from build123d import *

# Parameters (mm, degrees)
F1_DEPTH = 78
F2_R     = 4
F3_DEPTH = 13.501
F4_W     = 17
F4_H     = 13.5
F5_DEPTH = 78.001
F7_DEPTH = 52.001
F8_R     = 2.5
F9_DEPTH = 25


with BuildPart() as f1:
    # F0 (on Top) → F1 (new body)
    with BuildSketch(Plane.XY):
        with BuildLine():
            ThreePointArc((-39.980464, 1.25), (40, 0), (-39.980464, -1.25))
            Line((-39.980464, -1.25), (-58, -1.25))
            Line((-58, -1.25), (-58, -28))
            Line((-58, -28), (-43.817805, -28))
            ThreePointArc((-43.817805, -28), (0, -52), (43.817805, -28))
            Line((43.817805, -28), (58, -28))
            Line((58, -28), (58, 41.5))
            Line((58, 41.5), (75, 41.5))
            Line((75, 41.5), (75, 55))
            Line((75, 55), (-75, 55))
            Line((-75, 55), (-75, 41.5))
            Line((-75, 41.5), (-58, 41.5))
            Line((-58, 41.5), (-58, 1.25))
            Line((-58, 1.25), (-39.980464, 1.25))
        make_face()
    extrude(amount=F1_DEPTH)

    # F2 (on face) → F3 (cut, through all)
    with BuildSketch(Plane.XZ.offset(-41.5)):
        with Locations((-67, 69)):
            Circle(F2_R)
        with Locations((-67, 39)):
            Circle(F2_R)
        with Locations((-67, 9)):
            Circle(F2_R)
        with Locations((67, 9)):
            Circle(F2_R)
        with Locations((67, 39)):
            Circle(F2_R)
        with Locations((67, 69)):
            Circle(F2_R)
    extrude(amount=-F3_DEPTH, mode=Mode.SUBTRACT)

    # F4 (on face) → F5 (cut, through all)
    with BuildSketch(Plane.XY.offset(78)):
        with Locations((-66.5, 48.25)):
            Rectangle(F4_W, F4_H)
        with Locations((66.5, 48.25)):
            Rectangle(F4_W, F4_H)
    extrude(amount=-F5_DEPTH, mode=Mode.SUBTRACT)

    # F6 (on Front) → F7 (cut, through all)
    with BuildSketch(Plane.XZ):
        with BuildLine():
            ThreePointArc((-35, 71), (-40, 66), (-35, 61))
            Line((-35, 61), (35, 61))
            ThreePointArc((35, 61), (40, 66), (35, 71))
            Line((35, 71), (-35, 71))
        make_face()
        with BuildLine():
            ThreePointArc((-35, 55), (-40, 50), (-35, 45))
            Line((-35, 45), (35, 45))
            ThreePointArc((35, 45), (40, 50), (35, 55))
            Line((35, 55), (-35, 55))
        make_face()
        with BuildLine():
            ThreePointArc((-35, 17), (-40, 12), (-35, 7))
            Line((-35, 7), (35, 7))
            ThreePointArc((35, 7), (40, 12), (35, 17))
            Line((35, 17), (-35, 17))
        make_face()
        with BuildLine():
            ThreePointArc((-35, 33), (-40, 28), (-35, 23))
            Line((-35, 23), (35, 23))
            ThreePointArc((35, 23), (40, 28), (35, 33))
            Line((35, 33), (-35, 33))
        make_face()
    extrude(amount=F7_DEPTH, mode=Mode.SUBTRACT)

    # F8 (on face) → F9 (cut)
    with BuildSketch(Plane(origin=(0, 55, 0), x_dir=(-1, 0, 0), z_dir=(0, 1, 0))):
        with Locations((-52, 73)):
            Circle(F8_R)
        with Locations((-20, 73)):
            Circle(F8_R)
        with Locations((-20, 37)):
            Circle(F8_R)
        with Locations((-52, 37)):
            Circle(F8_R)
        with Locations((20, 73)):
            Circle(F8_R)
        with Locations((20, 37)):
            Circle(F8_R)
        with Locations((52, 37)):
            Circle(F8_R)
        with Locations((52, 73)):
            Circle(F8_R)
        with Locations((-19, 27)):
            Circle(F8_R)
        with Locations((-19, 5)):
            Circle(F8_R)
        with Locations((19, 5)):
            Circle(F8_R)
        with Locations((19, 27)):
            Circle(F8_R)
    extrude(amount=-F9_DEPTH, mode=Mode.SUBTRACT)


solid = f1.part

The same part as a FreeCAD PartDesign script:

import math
import FreeCAD as App
import Part
import Sketcher
Q = App.Units.Quantity

doc = App.newDocument("Part")
body = doc.addObject("PartDesign::Body", "Body")

# Sketch on XY plane
sketch1 = body.newObject("Sketcher::SketchObject", "Sketch")
sketch1.AttachmentSupport = (doc.getObject("XY_Plane"), [""])
sketch1.MapMode = "FlatFace"
sketch1.addGeometry(Part.ArcOfCircle(Part.Circle(App.Vector(0, 0, 0), App.Vector(0, 0, 1), 40), math.radians(-178), math.radians(178)), False)
sketch1.addGeometry(Part.LineSegment(App.Vector(-40, -1.2, 0), App.Vector(-58, -1.2, 0)), False)
sketch1.addGeometry(Part.LineSegment(App.Vector(-58, -1.2, 0), App.Vector(-58, -28, 0)), False)
sketch1.addGeometry(Part.LineSegment(App.Vector(-58, -28, 0), App.Vector(-43.8, -28, 0)), False)
sketch1.addGeometry(Part.ArcOfCircle(Part.Circle(App.Vector(0, 0, 0), App.Vector(0, 0, 1), 52), math.radians(-147), math.radians(-33)), False)
sketch1.addGeometry(Part.LineSegment(App.Vector(43.8, -28, 0), App.Vector(58, -28, 0)), False)
sketch1.addGeometry(Part.LineSegment(App.Vector(58, -28, 0), App.Vector(58, 41.5, 0)), False)
sketch1.addGeometry(Part.LineSegment(App.Vector(58, 41.5, 0), App.Vector(75, 41.5, 0)), False)
sketch1.addGeometry(Part.LineSegment(App.Vector(75, 41.5, 0), App.Vector(75, 55, 0)), False)
sketch1.addGeometry(Part.LineSegment(App.Vector(75, 55, 0), App.Vector(-75, 55, 0)), False)
sketch1.addGeometry(Part.LineSegment(App.Vector(-75, 55, 0), App.Vector(-75, 41.5, 0)), False)
sketch1.addGeometry(Part.LineSegment(App.Vector(-75, 41.5, 0), App.Vector(-58, 41.5, 0)), False)
sketch1.addGeometry(Part.LineSegment(App.Vector(-58, 41.5, 0), App.Vector(-58, 1.2, 0)), False)
sketch1.addGeometry(Part.LineSegment(App.Vector(-58, 1.2, 0), App.Vector(-40, 1.2, 0)), False)
sketch1.addConstraint(Sketcher.Constraint("Coincident", 0, 1, 1, 1))
sketch1.addConstraint(Sketcher.Constraint("Coincident", 1, 2, 2, 1))
sketch1.addConstraint(Sketcher.Constraint("Coincident", 2, 2, 3, 1))
sketch1.addConstraint(Sketcher.Constraint("Coincident", 3, 2, 4, 1))
sketch1.addConstraint(Sketcher.Constraint("Coincident", 4, 2, 5, 1))
sketch1.addConstraint(Sketcher.Constraint("Coincident", 5, 2, 6, 1))
sketch1.addConstraint(Sketcher.Constraint("Coincident", 6, 2, 7, 1))
sketch1.addConstraint(Sketcher.Constraint("Coincident", 7, 2, 8, 1))
sketch1.addConstraint(Sketcher.Constraint("Coincident", 8, 2, 9, 1))
sketch1.addConstraint(Sketcher.Constraint("Coincident", 9, 2, 10, 1))
sketch1.addConstraint(Sketcher.Constraint("Coincident", 10, 2, 11, 1))
sketch1.addConstraint(Sketcher.Constraint("Coincident", 11, 2, 12, 1))
sketch1.addConstraint(Sketcher.Constraint("Coincident", 12, 2, 13, 1))
sketch1.addConstraint(Sketcher.Constraint("Coincident", 13, 2, 0, 2))
sketch1.addConstraint(Sketcher.Constraint("Horizontal", 1))
sketch1.addConstraint(Sketcher.Constraint("Vertical", 2))
sketch1.addConstraint(Sketcher.Constraint("Horizontal", 3))
sketch1.addConstraint(Sketcher.Constraint("Horizontal", 5))
sketch1.addConstraint(Sketcher.Constraint("Vertical", 6))
sketch1.addConstraint(Sketcher.Constraint("Horizontal", 7))
sketch1.addConstraint(Sketcher.Constraint("Vertical", 8))
sketch1.addConstraint(Sketcher.Constraint("Horizontal", 9))
sketch1.addConstraint(Sketcher.Constraint("Vertical", 10))
sketch1.addConstraint(Sketcher.Constraint("Horizontal", 11))
sketch1.addConstraint(Sketcher.Constraint("Vertical", 12))
sketch1.addConstraint(Sketcher.Constraint("Horizontal", 13))
sketch1.addConstraint(Sketcher.Constraint("Coincident", 0, 3, -1, 1))
sketch1.addConstraint(Sketcher.Constraint("Coincident", 4, 3, -1, 1))
sketch1.addConstraint(Sketcher.Constraint("Symmetric", 2, 2, 5, 2, -2))
sketch1.addConstraint(Sketcher.Constraint("Symmetric", 7, 2, 10, 2, -2))
sketch1.addConstraint(Sketcher.Constraint("Symmetric", 1, 2, 12, 2, -1))
sketch1.addConstraint(Sketcher.Constraint("Radius", 0, Q("40 mm")))
sketch1.addConstraint(Sketcher.Constraint("Radius", 4, Q("52.000001 mm")))
sketch1.addConstraint(Sketcher.Constraint("DistanceX", 7, 1, 7, 2, Q("17 mm")))
sketch1.addConstraint(Sketcher.Constraint("DistanceX", 9, 2, 9, 1, Q("150 mm")))
sketch1.addConstraint(Sketcher.Constraint("DistanceY", 6, 1, 6, 2, Q("69.5 mm")))
sketch1.addConstraint(Sketcher.Constraint("DistanceY", 8, 1, 8, 2, Q("13.5 mm")))
sketch1.addConstraint(Sketcher.Constraint("DistanceY", 2, 2, -1, 1, Q("28 mm")))
sketch1.addConstraint(Sketcher.Constraint("DistanceY", 2, 2, 2, 1, Q("26.75 mm")))
pad1 = body.newObject("PartDesign::Pad", "Pad")
pad1.Profile = sketch1
pad1.Length = 78

# Sketch on XZ plane
sketch2 = body.newObject("Sketcher::SketchObject", "Sketch001")
sketch2.AttachmentSupport = (doc.getObject("XZ_Plane"), [""])
sketch2.MapMode = "FlatFace"
sketch2.AttachmentOffset = App.Placement(App.Vector(0, 0, -41.5), App.Rotation())
sketch2.addGeometry(Part.Circle(App.Vector(-67, 69, 0), App.Vector(0, 0, 1), 4), False)
sketch2.addGeometry(Part.Circle(App.Vector(-67, 39, 0), App.Vector(0, 0, 1), 4), False)
sketch2.addGeometry(Part.Circle(App.Vector(-67, 9, 0), App.Vector(0, 0, 1), 4), False)
sketch2.addGeometry(Part.Circle(App.Vector(67, 9, 0), App.Vector(0, 0, 1), 4), False)
sketch2.addGeometry(Part.Circle(App.Vector(67, 39, 0), App.Vector(0, 0, 1), 4), False)
sketch2.addGeometry(Part.Circle(App.Vector(67, 69, 0), App.Vector(0, 0, 1), 4), False)
sketch2.addConstraint(Sketcher.Constraint("Equal", 0, 1))
sketch2.addConstraint(Sketcher.Constraint("Equal", 1, 2))
sketch2.addConstraint(Sketcher.Constraint("Equal", 2, 3))
sketch2.addConstraint(Sketcher.Constraint("Equal", 3, 4))
sketch2.addConstraint(Sketcher.Constraint("Equal", 4, 5))
sketch2.addConstraint(Sketcher.Constraint("Symmetric", 2, 3, 3, 3, -2))
sketch2.addConstraint(Sketcher.Constraint("Symmetric", 1, 3, 4, 3, -2))
sketch2.addConstraint(Sketcher.Constraint("Symmetric", 0, 3, 5, 3, -2))
sketch2.addConstraint(Sketcher.Constraint("Vertical", 0, 3, 1, 3))
sketch2.addConstraint(Sketcher.Constraint("Vertical", 1, 3, 2, 3))
sketch2.addConstraint(Sketcher.Constraint("Diameter", 0, Q("8 mm")))
sketch2.addConstraint(Sketcher.Constraint("DistanceX", 0, 3, -1, 1, Q("67 mm")))
sketch2.addConstraint(Sketcher.Constraint("DistanceY", -1, 1, 0, 3, Q("69 mm")))
sketch2.addConstraint(Sketcher.Constraint("DistanceY", -1, 1, 1, 3, Q("39 mm")))
sketch2.addConstraint(Sketcher.Constraint("DistanceY", -1, 1, 2, 3, Q("9 mm")))
pocket1 = body.newObject("PartDesign::Pocket", "Pocket")
pocket1.Profile = sketch2
pocket1.Type = "ThroughAll"

# Sketch on XY plane
sketch3 = body.newObject("Sketcher::SketchObject", "Sketch002")
sketch3.AttachmentSupport = (doc.getObject("XY_Plane"), [""])
sketch3.MapMode = "FlatFace"
sketch3.AttachmentOffset = App.Placement(App.Vector(0, 0, 78), App.Rotation())
sketch3.addGeometry(Part.LineSegment(App.Vector(-75, 55, 0), App.Vector(-75, 42, 0)), False)
sketch3.addGeometry(Part.LineSegment(App.Vector(-75, 42, 0), App.Vector(-58, 42, 0)), False)
sketch3.addGeometry(Part.LineSegment(App.Vector(-58, 42, 0), App.Vector(-58, 55, 0)), False)
sketch3.addGeometry(Part.LineSegment(App.Vector(-58, 55, 0), App.Vector(-75, 55, 0)), False)
sketch3.addGeometry(Part.LineSegment(App.Vector(58, 55, 0), App.Vector(58, 42, 0)), False)
sketch3.addGeometry(Part.LineSegment(App.Vector(58, 42, 0), App.Vector(75, 42, 0)), False)
sketch3.addGeometry(Part.LineSegment(App.Vector(75, 42, 0), App.Vector(75, 55, 0)), False)
sketch3.addGeometry(Part.LineSegment(App.Vector(75, 55, 0), App.Vector(58, 55, 0)), False)
sketch3.addConstraint(Sketcher.Constraint("Coincident", 0, 2, 1, 1))
sketch3.addConstraint(Sketcher.Constraint("Coincident", 1, 2, 2, 1))
sketch3.addConstraint(Sketcher.Constraint("Coincident", 2, 2, 3, 1))
sketch3.addConstraint(Sketcher.Constraint("Coincident", 3, 2, 0, 1))
sketch3.addConstraint(Sketcher.Constraint("Coincident", 4, 2, 5, 1))
sketch3.addConstraint(Sketcher.Constraint("Coincident", 5, 2, 6, 1))
sketch3.addConstraint(Sketcher.Constraint("Coincident", 6, 2, 7, 1))
sketch3.addConstraint(Sketcher.Constraint("Coincident", 7, 2, 4, 1))
sketch3.addConstraint(Sketcher.Constraint("Vertical", 0))
sketch3.addConstraint(Sketcher.Constraint("Horizontal", 1))
sketch3.addConstraint(Sketcher.Constraint("Vertical", 2))
sketch3.addConstraint(Sketcher.Constraint("Horizontal", 3))
sketch3.addConstraint(Sketcher.Constraint("Vertical", 4))
sketch3.addConstraint(Sketcher.Constraint("Horizontal", 5))
sketch3.addConstraint(Sketcher.Constraint("Vertical", 6))
sketch3.addConstraint(Sketcher.Constraint("Horizontal", 7))
sketch3.addConstraint(Sketcher.Constraint("Symmetric", 1, 2, 4, 2, -2))
sketch3.addConstraint(Sketcher.Constraint("Symmetric", 3, 2, 6, 2, -2))
sketch3.addConstraint(Sketcher.Constraint("DistanceX", 1, 1, 1, 2, Q("17 mm")))
sketch3.addConstraint(Sketcher.Constraint("DistanceY", 0, 2, 0, 1, Q("13.5 mm")))
sketch3.addConstraint(Sketcher.Constraint("DistanceX", 0, 2, -1, 1, Q("75 mm")))
sketch3.addConstraint(Sketcher.Constraint("DistanceY", -1, 1, 2, 2, Q("55 mm")))
pocket2 = body.newObject("PartDesign::Pocket", "Pocket001")
pocket2.Profile = sketch3
pocket2.Type = "ThroughAll"

# Sketch on XZ plane
sketch4 = body.newObject("Sketcher::SketchObject", "Sketch003")
sketch4.AttachmentSupport = (doc.getObject("XZ_Plane"), [""])
sketch4.MapMode = "FlatFace"
sketch4.addGeometry(Part.ArcOfCircle(Part.Circle(App.Vector(-35, 66, 0), App.Vector(0, 0, 1), 5), math.radians(90), math.radians(270)), False)
sketch4.addGeometry(Part.LineSegment(App.Vector(-35, 61, 0), App.Vector(35, 61, 0)), False)
sketch4.addGeometry(Part.ArcOfCircle(Part.Circle(App.Vector(35, 66, 0), App.Vector(0, 0, 1), 5), math.radians(-90), math.radians(90)), False)
sketch4.addGeometry(Part.LineSegment(App.Vector(35, 71, 0), App.Vector(-35, 71, 0)), False)
sketch4.addGeometry(Part.ArcOfCircle(Part.Circle(App.Vector(-35, 50, 0), App.Vector(0, 0, 1), 5), math.radians(90), math.radians(270)), False)
sketch4.addGeometry(Part.LineSegment(App.Vector(-35, 45, 0), App.Vector(35, 45, 0)), False)
sketch4.addGeometry(Part.ArcOfCircle(Part.Circle(App.Vector(35, 50, 0), App.Vector(0, 0, 1), 5), math.radians(-90), math.radians(90)), False)
sketch4.addGeometry(Part.LineSegment(App.Vector(35, 55, 0), App.Vector(-35, 55, 0)), False)
sketch4.addGeometry(Part.ArcOfCircle(Part.Circle(App.Vector(-35, 12, 0), App.Vector(0, 0, 1), 5), math.radians(90), math.radians(270)), False)
sketch4.addGeometry(Part.LineSegment(App.Vector(-35, 7, 0), App.Vector(35, 7, 0)), False)
sketch4.addGeometry(Part.ArcOfCircle(Part.Circle(App.Vector(35, 12, 0), App.Vector(0, 0, 1), 5), math.radians(-90), math.radians(90)), False)
sketch4.addGeometry(Part.LineSegment(App.Vector(35, 17, 0), App.Vector(-35, 17, 0)), False)
sketch4.addGeometry(Part.ArcOfCircle(Part.Circle(App.Vector(-35, 28, 0), App.Vector(0, 0, 1), 5), math.radians(90), math.radians(270)), False)
sketch4.addGeometry(Part.LineSegment(App.Vector(-35, 23, 0), App.Vector(35, 23, 0)), False)
sketch4.addGeometry(Part.ArcOfCircle(Part.Circle(App.Vector(35, 28, 0), App.Vector(0, 0, 1), 5), math.radians(-90), math.radians(90)), False)
sketch4.addGeometry(Part.LineSegment(App.Vector(35, 33, 0), App.Vector(-35, 33, 0)), False)
sketch4.addConstraint(Sketcher.Constraint("Tangent", 0, 2, 1, 1))
sketch4.addConstraint(Sketcher.Constraint("Tangent", 1, 2, 2, 1))
sketch4.addConstraint(Sketcher.Constraint("Tangent", 2, 2, 3, 1))
sketch4.addConstraint(Sketcher.Constraint("Tangent", 3, 2, 0, 1))
sketch4.addConstraint(Sketcher.Constraint("Tangent", 4, 2, 5, 1))
sketch4.addConstraint(Sketcher.Constraint("Tangent", 5, 2, 6, 1))
sketch4.addConstraint(Sketcher.Constraint("Tangent", 6, 2, 7, 1))
sketch4.addConstraint(Sketcher.Constraint("Tangent", 7, 2, 4, 1))
sketch4.addConstraint(Sketcher.Constraint("Tangent", 8, 2, 9, 1))
sketch4.addConstraint(Sketcher.Constraint("Tangent", 9, 2, 10, 1))
sketch4.addConstraint(Sketcher.Constraint("Tangent", 10, 2, 11, 1))
sketch4.addConstraint(Sketcher.Constraint("Tangent", 11, 2, 8, 1))
sketch4.addConstraint(Sketcher.Constraint("Tangent", 12, 2, 13, 1))
sketch4.addConstraint(Sketcher.Constraint("Tangent", 13, 2, 14, 1))
sketch4.addConstraint(Sketcher.Constraint("Tangent", 14, 2, 15, 1))
sketch4.addConstraint(Sketcher.Constraint("Tangent", 15, 2, 12, 1))
sketch4.addConstraint(Sketcher.Constraint("Horizontal", 1))
sketch4.addConstraint(Sketcher.Constraint("Horizontal", 3))
sketch4.addConstraint(Sketcher.Constraint("Horizontal", 5))
sketch4.addConstraint(Sketcher.Constraint("Horizontal", 7))
sketch4.addConstraint(Sketcher.Constraint("Horizontal", 9))
sketch4.addConstraint(Sketcher.Constraint("Horizontal", 11))
sketch4.addConstraint(Sketcher.Constraint("Horizontal", 13))
sketch4.addConstraint(Sketcher.Constraint("Horizontal", 15))
sketch4.addConstraint(Sketcher.Constraint("Equal", 2, 4))
sketch4.addConstraint(Sketcher.Constraint("Equal", 6, 8))
sketch4.addConstraint(Sketcher.Constraint("Equal", 10, 12))
sketch4.addConstraint(Sketcher.Constraint("Vertical", 0, 3, 4, 3))
sketch4.addConstraint(Sketcher.Constraint("Vertical", 2, 3, 6, 3))
sketch4.addConstraint(Sketcher.Constraint("Vertical", 4, 3, 8, 3))
sketch4.addConstraint(Sketcher.Constraint("Vertical", 6, 3, 10, 3))
sketch4.addConstraint(Sketcher.Constraint("Vertical", 8, 3, 12, 3))
sketch4.addConstraint(Sketcher.Constraint("Vertical", 10, 3, 14, 3))
sketch4.addConstraint(Sketcher.Constraint("Radius", 0, Q("5 mm")))
sketch4.addConstraint(Sketcher.Constraint("DistanceX", 1, 1, 1, 2, Q("70 mm")))
sketch4.addConstraint(Sketcher.Constraint("DistanceX", 0, 3, -1, 1, Q("35 mm")))
sketch4.addConstraint(Sketcher.Constraint("DistanceY", -1, 1, 0, 3, Q("66 mm")))
sketch4.addConstraint(Sketcher.Constraint("DistanceY", -1, 1, 4, 3, Q("50 mm")))
sketch4.addConstraint(Sketcher.Constraint("DistanceY", -1, 1, 8, 3, Q("12 mm")))
sketch4.addConstraint(Sketcher.Constraint("DistanceY", -1, 1, 12, 3, Q("28 mm")))
pocket3 = body.newObject("PartDesign::Pocket", "Pocket002")
pocket3.Profile = sketch4
pocket3.Type = "ThroughAll"
pocket3.Reversed = True

# Sketch on XZ plane
sketch5 = body.newObject("Sketcher::SketchObject", "Sketch004")
sketch5.AttachmentSupport = (doc.getObject("XZ_Plane"), [""])
sketch5.MapMode = "FlatFace"
sketch5.AttachmentOffset = App.Placement(App.Vector(0, 0, -55), App.Rotation())
sketch5.addGeometry(Part.Circle(App.Vector(52, 73, 0), App.Vector(0, 0, 1), 2.5), False)
sketch5.addGeometry(Part.Circle(App.Vector(20, 73, 0), App.Vector(0, 0, 1), 2.5), False)
sketch5.addGeometry(Part.Circle(App.Vector(20, 37, 0), App.Vector(0, 0, 1), 2.5), False)
sketch5.addGeometry(Part.Circle(App.Vector(52, 37, 0), App.Vector(0, 0, 1), 2.5), False)
sketch5.addGeometry(Part.Circle(App.Vector(-20, 73, 0), App.Vector(0, 0, 1), 2.5), False)
sketch5.addGeometry(Part.Circle(App.Vector(-20, 37, 0), App.Vector(0, 0, 1), 2.5), False)
sketch5.addGeometry(Part.Circle(App.Vector(-52, 37, 0), App.Vector(0, 0, 1), 2.5), False)
sketch5.addGeometry(Part.Circle(App.Vector(-52, 73, 0), App.Vector(0, 0, 1), 2.5), False)
sketch5.addGeometry(Part.Circle(App.Vector(19, 27, 0), App.Vector(0, 0, 1), 2.5), False)
sketch5.addGeometry(Part.Circle(App.Vector(19, 5, 0), App.Vector(0, 0, 1), 2.5), False)
sketch5.addGeometry(Part.Circle(App.Vector(-19, 5, 0), App.Vector(0, 0, 1), 2.5), False)
sketch5.addGeometry(Part.Circle(App.Vector(-19, 27, 0), App.Vector(0, 0, 1), 2.5), False)
sketch5.addConstraint(Sketcher.Constraint("Equal", 0, 1))
sketch5.addConstraint(Sketcher.Constraint("Equal", 1, 2))
sketch5.addConstraint(Sketcher.Constraint("Equal", 2, 3))
sketch5.addConstraint(Sketcher.Constraint("Equal", 3, 4))
sketch5.addConstraint(Sketcher.Constraint("Equal", 4, 5))
sketch5.addConstraint(Sketcher.Constraint("Equal", 5, 6))
sketch5.addConstraint(Sketcher.Constraint("Equal", 6, 7))
sketch5.addConstraint(Sketcher.Constraint("Equal", 7, 8))
sketch5.addConstraint(Sketcher.Constraint("Equal", 8, 9))
sketch5.addConstraint(Sketcher.Constraint("Equal", 9, 10))
sketch5.addConstraint(Sketcher.Constraint("Equal", 10, 11))
sketch5.addConstraint(Sketcher.Constraint("Symmetric", 1, 3, 4, 3, -2))
sketch5.addConstraint(Sketcher.Constraint("Symmetric", 2, 3, 5, 3, -2))
sketch5.addConstraint(Sketcher.Constraint("Symmetric", 3, 3, 6, 3, -2))
sketch5.addConstraint(Sketcher.Constraint("Symmetric", 0, 3, 7, 3, -2))
sketch5.addConstraint(Sketcher.Constraint("Symmetric", 9, 3, 10, 3, -2))
sketch5.addConstraint(Sketcher.Constraint("Symmetric", 8, 3, 11, 3, -2))
sketch5.addConstraint(Sketcher.Constraint("Horizontal", 0, 3, 1, 3))
sketch5.addConstraint(Sketcher.Constraint("Horizontal", 2, 3, 3, 3))
sketch5.addConstraint(Sketcher.Constraint("Vertical", 1, 3, 2, 3))
sketch5.addConstraint(Sketcher.Constraint("Vertical", 0, 3, 3, 3))
sketch5.addConstraint(Sketcher.Constraint("Vertical", 8, 3, 9, 3))
sketch5.addConstraint(Sketcher.Constraint("Diameter", 0, Q("5 mm")))
sketch5.addConstraint(Sketcher.Constraint("DistanceX", -1, 1, 0, 3, Q("52 mm")))
sketch5.addConstraint(Sketcher.Constraint("DistanceY", -1, 1, 0, 3, Q("73 mm")))
sketch5.addConstraint(Sketcher.Constraint("DistanceX", -1, 1, 1, 3, Q("20 mm")))
sketch5.addConstraint(Sketcher.Constraint("DistanceY", -1, 1, 2, 3, Q("37 mm")))
sketch5.addConstraint(Sketcher.Constraint("DistanceX", -1, 1, 8, 3, Q("19 mm")))
sketch5.addConstraint(Sketcher.Constraint("DistanceY", -1, 1, 8, 3, Q("27 mm")))
sketch5.addConstraint(Sketcher.Constraint("DistanceY", -1, 1, 9, 3, Q("5 mm")))
pocket4 = body.newObject("PartDesign::Pocket", "Pocket003")
pocket4.Profile = sketch5
pocket4.Length = 25
pocket4.Reversed = True

doc.recompute()
